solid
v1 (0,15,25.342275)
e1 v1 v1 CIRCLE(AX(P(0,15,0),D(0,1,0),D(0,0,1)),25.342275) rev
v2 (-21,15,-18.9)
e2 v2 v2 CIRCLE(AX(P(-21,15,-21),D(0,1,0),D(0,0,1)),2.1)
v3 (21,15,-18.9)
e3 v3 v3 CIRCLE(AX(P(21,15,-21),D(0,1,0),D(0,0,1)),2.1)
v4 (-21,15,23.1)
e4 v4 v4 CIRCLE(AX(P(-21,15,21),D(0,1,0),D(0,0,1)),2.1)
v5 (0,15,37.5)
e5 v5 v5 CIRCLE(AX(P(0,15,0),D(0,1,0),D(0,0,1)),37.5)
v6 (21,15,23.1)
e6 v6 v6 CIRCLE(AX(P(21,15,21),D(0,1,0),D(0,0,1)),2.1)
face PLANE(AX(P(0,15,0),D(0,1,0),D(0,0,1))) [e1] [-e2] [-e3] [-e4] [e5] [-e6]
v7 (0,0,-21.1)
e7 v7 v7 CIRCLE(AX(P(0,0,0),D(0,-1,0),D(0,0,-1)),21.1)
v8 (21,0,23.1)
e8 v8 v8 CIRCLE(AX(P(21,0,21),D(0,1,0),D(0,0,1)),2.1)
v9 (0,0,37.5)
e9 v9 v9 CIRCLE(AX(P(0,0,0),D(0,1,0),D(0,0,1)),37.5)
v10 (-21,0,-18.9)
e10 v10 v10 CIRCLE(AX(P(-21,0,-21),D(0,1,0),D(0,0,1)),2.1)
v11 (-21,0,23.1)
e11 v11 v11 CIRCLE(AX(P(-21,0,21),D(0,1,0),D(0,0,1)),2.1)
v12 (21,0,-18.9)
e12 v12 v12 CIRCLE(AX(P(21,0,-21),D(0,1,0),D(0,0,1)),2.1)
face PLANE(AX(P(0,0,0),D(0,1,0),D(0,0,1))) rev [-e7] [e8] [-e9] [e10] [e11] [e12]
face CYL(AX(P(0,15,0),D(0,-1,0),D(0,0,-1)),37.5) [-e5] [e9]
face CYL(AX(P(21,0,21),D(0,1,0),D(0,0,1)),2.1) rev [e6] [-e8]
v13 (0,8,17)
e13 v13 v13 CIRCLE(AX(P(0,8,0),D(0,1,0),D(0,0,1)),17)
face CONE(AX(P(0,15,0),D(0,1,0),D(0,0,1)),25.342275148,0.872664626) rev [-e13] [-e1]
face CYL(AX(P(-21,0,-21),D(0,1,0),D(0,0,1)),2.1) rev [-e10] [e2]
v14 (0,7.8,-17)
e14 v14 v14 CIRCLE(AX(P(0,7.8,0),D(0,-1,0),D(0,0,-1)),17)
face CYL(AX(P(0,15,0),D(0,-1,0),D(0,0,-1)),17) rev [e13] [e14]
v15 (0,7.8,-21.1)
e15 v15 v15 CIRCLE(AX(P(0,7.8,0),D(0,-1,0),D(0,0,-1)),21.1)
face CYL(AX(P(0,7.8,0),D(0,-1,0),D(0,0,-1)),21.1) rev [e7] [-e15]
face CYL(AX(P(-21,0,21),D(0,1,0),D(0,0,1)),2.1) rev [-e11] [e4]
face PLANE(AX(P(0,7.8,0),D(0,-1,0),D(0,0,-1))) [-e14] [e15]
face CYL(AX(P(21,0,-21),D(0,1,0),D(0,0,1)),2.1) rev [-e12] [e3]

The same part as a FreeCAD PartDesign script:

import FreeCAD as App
import Part
import Sketcher
from FreeCAD import Vector
Q = App.Units.Quantity


def edges_at(feature, points):
    """Names of the edges that pass closest to the given points."""
    edges = feature.Shape.Edges
    near = lambda p: min(range(len(edges)), key=lambda i: edges[i].distToShape(Part.Vertex(*p))[0])
    return sorted({f"Edge{near(p) + 1}" for p in points})

doc = App.newDocument("Part")
body = doc.addObject("PartDesign::Body", "Body")

# Sketch on XZ plane
sketch1 = doc.addObject("Sketcher::SketchObject", "Sketch")
body.addObject(sketch1)
sketch1.AttachmentSupport = (doc.XZ_Plane, [""])
sketch1.MapMode = "FlatFace"
sketch1.addGeometry(Part.Circle(Vector(0, 0, 0), Vector(0, 0, 1), 37.5), False)
sketch1.addConstraint([
    Sketcher.Constraint("Coincident", 0, 3, -1, 1),
    Sketcher.Constraint("Diameter", 0, Q("75 mm")),
])
pad1 = doc.addObject("PartDesign::Pad", "Pad")
body.addObject(pad1)
pad1.Profile = sketch1
pad1.Length = 15
pad1.Reversed = True

# Sketch on XZ plane
sketch2 = doc.addObject("Sketcher::SketchObject", "Sketch001")
body.addObject(sketch2)
sketch2.AttachmentSupport = (doc.XZ_Plane, [""])
sketch2.MapMode = "FlatFace"
sketch2.addGeometry(Part.Circle(Vector(0, 0, 0), Vector(0, 0, 1), 21.1), False)
sketch2.addConstraint([
    Sketcher.Constraint("Coincident", 0, 3, -1, 1),
    Sketcher.Constraint("Diameter", 0, Q("42.2 mm")),
])
pocket1 = doc.addObject("PartDesign::Pocket", "Pocket")
body.addObject(pocket1)
pocket1.Profile = sketch2
pocket1.Length = 7.8

# Sketch on XZ plane
sketch3 = doc.addObject("Sketcher::SketchObject", "Sketch002")
body.addObject(sketch3)
sketch3.AttachmentSupport = (doc.XZ_Plane, [""])
sketch3.MapMode = "FlatFace"
sketch3.AttachmentOffset = App.Placement(Vector(0, 0, -7.8), App.Rotation())
sketch3.addGeometry(Part.Circle(Vector(0, 0, 0), Vector(0, 0, 1), 17), False)
sketch3.addConstraint([
    Sketcher.Constraint("Coincident", 0, 3, -1, 1),
    Sketcher.Constraint("Diameter", 0, Q("34 mm")),
])
pocket2 = doc.addObject("PartDesign::Pocket", "Pocket001")
body.addObject(pocket2)
pocket2.Profile = sketch3
pocket2.Type = "ThroughAll"

# Sketch on XZ plane
sketch4 = doc.addObject("Sketcher::SketchObject", "Sketch003")
body.addObject(sketch4)
sketch4.AttachmentSupport = (doc.XZ_Plane, [""])
sketch4.MapMode = "FlatFace"
sketch4.AttachmentOffset = App.Placement(Vector(0, 0, -15), App.Rotation())
sketch4.addGeometry([
    Part.Circle(Vector(-21, 21, 0), Vector(0, 0, 1), 2.1),
    Part.Circle(Vector(-21, -21, 0), Vector(0, 0, 1), 2.1),
    Part.Circle(Vector(21, -21, 0), Vector(0, 0, 1), 2.1),
    Part.Circle(Vector(21, 21, 0), Vector(0, 0, 1), 2.1),
], False)
sketch4.addConstraint([
    Sketcher.Constraint("Equal", 0, 1),
    Sketcher.Constraint("Equal", 1, 2),
    Sketcher.Constraint("Equal", 2, 3),
    Sketcher.Constraint("Symmetric", 0, 3, 2, 3, -1, 1),
    Sketcher.Constraint("Symmetric", 1, 3, 3, 3, -1, 1),
    Sketcher.Constraint("Symmetric", 1, 3, 2, 3, -2),
    Sketcher.Constraint("Diameter", 0, Q("4.2 mm")),
    Sketcher.Constraint("DistanceX", 0, 3, -1, 1, Q("21 mm")),
    Sketcher.Constraint("DistanceY", -1, 1, 0, 3, Q("21 mm")),
])
pocket3 = doc.addObject("PartDesign::Pocket", "Pocket002")
body.addObject(pocket3)
pocket3.Profile = sketch4
pocket3.Type = "ThroughAll"
pocket3.Reversed = True
doc.recompute()

chamfer = doc.addObject("PartDesign::Chamfer", "Chamfer")
body.addObject(chamfer)
chamfer.Base = (pocket3, edges_at(pocket3, [(0, 15, 17)]))
chamfer.ChamferType = "Two distances"
chamfer.Size = 7
chamfer.Size2 = 8.342275
chamfer.FlipDirection = True

doc.recompute()
